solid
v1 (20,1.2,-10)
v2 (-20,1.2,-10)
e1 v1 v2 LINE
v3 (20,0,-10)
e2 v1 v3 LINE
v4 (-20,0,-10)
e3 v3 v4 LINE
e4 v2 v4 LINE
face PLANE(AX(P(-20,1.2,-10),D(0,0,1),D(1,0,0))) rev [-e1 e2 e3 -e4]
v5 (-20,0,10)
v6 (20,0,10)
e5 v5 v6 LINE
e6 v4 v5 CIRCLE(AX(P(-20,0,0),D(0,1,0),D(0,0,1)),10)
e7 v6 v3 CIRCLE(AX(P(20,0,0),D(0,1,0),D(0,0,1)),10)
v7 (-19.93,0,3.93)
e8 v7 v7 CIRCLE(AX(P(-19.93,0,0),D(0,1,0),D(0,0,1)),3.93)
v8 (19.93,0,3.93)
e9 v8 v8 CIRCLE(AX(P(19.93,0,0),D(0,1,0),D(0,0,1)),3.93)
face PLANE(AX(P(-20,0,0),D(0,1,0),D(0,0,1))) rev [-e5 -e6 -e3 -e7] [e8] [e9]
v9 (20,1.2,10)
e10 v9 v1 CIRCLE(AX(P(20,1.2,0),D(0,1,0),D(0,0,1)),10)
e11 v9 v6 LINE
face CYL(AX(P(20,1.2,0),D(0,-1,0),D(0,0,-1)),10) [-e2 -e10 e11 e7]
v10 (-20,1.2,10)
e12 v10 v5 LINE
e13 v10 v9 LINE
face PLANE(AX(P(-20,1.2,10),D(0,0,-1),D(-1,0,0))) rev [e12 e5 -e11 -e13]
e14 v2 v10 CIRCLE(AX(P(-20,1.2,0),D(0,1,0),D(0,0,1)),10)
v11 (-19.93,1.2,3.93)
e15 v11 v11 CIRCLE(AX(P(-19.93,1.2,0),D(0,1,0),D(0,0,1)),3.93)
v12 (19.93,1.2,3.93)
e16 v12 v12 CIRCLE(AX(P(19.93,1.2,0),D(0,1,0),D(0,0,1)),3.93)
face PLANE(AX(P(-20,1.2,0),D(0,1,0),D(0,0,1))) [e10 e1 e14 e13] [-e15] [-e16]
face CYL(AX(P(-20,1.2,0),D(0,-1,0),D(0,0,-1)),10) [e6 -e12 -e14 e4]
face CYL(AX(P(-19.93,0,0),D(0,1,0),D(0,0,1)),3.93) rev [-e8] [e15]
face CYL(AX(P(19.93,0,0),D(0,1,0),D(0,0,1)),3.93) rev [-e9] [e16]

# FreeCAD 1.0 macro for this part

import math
import FreeCAD as App
import Part
import Sketcher

V = App.Vector
Q = App.Units.Quantity

doc = App.newDocument("Part")
params = doc.addObject("Spreadsheet::Sheet", "Params")
for row, (alias, value) in enumerate([
    ("sketch1_radius", "10 mm"),
    ("sketch1_width", "40 mm"),
    ("pad1_length", "1.2 mm"),
    ("sketch2_diameter", "7.86 mm"),
], start=1):
    params.set(f"A{row}", alias)
    params.set(f"B{row}", "=" + value)
    params.setAlias(f"B{row}", alias)

body = doc.addObject("PartDesign::Body", "Body")

sketch1 = body.newObject("Sketcher::SketchObject", "Sketch")
sketch1.AttachmentSupport = (doc.getObject("XZ_Plane"), [""])
sketch1.MapMode = "FlatFace"
sketch1.addGeometry([
    Part.LineSegment(V(20, -10, 0), V(-20, -10, 0)),
    Part.ArcOfCircle(Part.Circle(V(-20, 0, 0), V(0, 0, 1), 10), math.radians(90), math.radians(270)),
    Part.LineSegment(V(-20, 10, 0), V(20, 10, 0)),
    Part.ArcOfCircle(Part.Circle(V(20, 0, 0), V(0, 0, 1), 10), math.radians(-90), math.radians(90)),
], False)
sketch1.addConstraint([
    Sketcher.Constraint("Tangent", 0, 2, 1, 2),
    Sketcher.Constraint("Tangent", 1, 1, 2, 1),
    Sketcher.Constraint("Tangent", 2, 2, 3, 2),
    Sketcher.Constraint("Tangent", 3, 1, 0, 1),
    Sketcher.Constraint("Horizontal", 0),
    Sketcher.Constraint("Horizontal", 2),
    Sketcher.Constraint("Symmetric", 1, 3, 3, 3, -1, 1),
    Sketcher.Constraint("Radius", 1, Q("10 mm")),
    Sketcher.Constraint("DistanceX", 0, 2, 0, 1, Q("40 mm")),
])
sketch1.setExpression("Constraints[7]", "Params.sketch1_radius")
sketch1.setExpression("Constraints[8]", "Params.sketch1_width")
pad1 = body.newObject("PartDesign::Pad", "Pad")
pad1.Profile = sketch1
pad1.setExpression("Length", "Params.pad1_length")
pad1.Reversed = True

sketch2 = body.newObject("Sketcher::SketchObject", "Sketch001")
sketch2.AttachmentSupport = (doc.getObject("XZ_Plane"), [""])
sketch2.MapMode = "FlatFace"
sketch2.AttachmentOffset = App.Placement(V(0, 0, -1.2), App.Rotation())
sketch2.addGeometry([
    Part.Circle(V(-19.9, 0, 0), V(0, 0, 1), 3.9),
    Part.Circle(V(19.9, 0, 0), V(0, 0, 1), 3.9),
], False)
sketch2.addConstraint([
    Sketcher.Constraint("Equal", 0, 1),
    Sketcher.Constraint("Symmetric", 0, 3, 1, 3, -1, 1),
    Sketcher.Constraint("PointOnObject", 0, 3, -1),
    Sketcher.Constraint("Diameter", 0, Q("7.86 mm")),
    Sketcher.Constraint("DistanceX", 0, 3, -1, 1, Q("19.93 mm")),
])
sketch2.setExpression("Constraints[3]", "Params.sketch2_diameter")
pocket1 = body.newObject("PartDesign::Pocket", "Pocket")
pocket1.Profile = sketch2
pocket1.Type = "ThroughAll"
pocket1.Reversed = True

doc.recompute()
